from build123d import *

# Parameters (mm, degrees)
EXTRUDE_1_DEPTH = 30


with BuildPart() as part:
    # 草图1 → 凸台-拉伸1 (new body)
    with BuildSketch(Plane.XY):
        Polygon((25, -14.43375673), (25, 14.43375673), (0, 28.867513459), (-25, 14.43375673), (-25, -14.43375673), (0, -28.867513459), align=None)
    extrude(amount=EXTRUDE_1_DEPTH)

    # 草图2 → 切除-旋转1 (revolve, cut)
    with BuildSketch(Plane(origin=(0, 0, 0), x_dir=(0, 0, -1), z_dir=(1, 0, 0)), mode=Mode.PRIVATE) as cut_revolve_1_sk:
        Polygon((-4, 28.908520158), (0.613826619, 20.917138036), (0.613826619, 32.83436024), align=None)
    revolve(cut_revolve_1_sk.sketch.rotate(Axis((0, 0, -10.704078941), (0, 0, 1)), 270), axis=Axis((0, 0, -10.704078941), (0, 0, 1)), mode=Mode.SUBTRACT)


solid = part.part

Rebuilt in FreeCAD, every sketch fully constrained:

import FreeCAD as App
import Part
import Sketcher

V = App.Vector
Q = App.Units.Quantity


def add_polygon(sketch, points):
    """Adds a closed chain of lines whose ends are joined by coincident constraints."""
    first, n = sketch.GeometryCount, len(points)
    for a, b in zip(points, points[1:] + points[:1]):
        sketch.addGeometry(Part.LineSegment(App.Vector(*a, 0), App.Vector(*b, 0)), False)
    for i in range(n):
        sketch.addConstraint(Sketcher.Constraint("Coincident", first + i, 2, first + (i + 1) % n, 1))

doc = App.newDocument("Part")
params = doc.addObject("Spreadsheet::Sheet", "Params")
for row, (alias, value) in enumerate([
    ("pad1_length", "30 mm"),
    ("groove_angle", "360 deg"),
], start=1):
    params.set(f"A{row}", alias)
    params.set(f"B{row}", "=" + value)
    params.setAlias(f"B{row}", alias)

body = doc.addObject("PartDesign::Body", "Body")

# Sketch on XY plane
sketch1 = doc.addObject("Sketcher::SketchObject", "Sketch")
body.addObject(sketch1)
sketch1.AttachmentSupport = (doc.XY_Plane, [""])
sketch1.MapMode = "FlatFace"
add_polygon(sketch1, [(25, -14), (25, 14), (0, 29), (-25, 14), (-25, -14), (0, -29)])  # lines 0-5
sketch1.addConstraint([
    Sketcher.Constraint("Vertical", 0),
    Sketcher.Constraint("Vertical", 3),
    Sketcher.Constraint("Symmetric", 0, 2, 3, 2, -1, 1),
    Sketcher.Constraint("Symmetric", 1, 2, 4, 2, -1, 1),
    Sketcher.Constraint("PointOnObject", 1, 2, -2),
    Sketcher.Constraint("Parallel", 2, 5),
    Sketcher.Constraint("Horizontal", 0, 2, 2, 2),
    Sketcher.Constraint("Angle", 1, Q("150 deg")),
    Sketcher.Constraint("DistanceX", -1, 1, 0, 2, Q("25 mm")),
    Sketcher.Constraint("DistanceY", 0, 1, 0, 2, Q("28.867513 mm")),
])
pad1 = doc.addObject("PartDesign::Pad", "Pad")
body.addObject(pad1)
pad1.Profile = sketch1
pad1.setExpression("Length", "Params.pad1_length")

# Sketch on YZ plane
sketch2 = doc.addObject("Sketcher::SketchObject", "Sketch001")
body.addObject(sketch2)
sketch2.AttachmentSupport = (doc.YZ_Plane, [""])
sketch2.MapMode = "FlatFace"
add_polygon(sketch2, [(29, 4), (21, -1), (33, -1)])  # lines 0-2
sketch2.addConstraint([
    Sketcher.Constraint("Horizontal", 1),
    Sketcher.Constraint("Angle", 0, Q("-150 deg")),
    Sketcher.Constraint("DistanceY", -1, 1, 2, 2, Q("4 mm")),
    Sketcher.Constraint("Distance", 2, Q("6.058021 mm")),
    Sketcher.Constraint("DistanceX", 1, 1, 1, 2, Q("11.917222 mm")),
    Sketcher.Constraint("DistanceX", -1, 1, 0, 2, Q("20.917138 mm")),
])
groove = doc.addObject("PartDesign::Groove", "Groove")
body.addObject(groove)
groove.Profile = sketch2
groove.ReferenceAxis = (sketch2, ["V_Axis"])
groove.setExpression("Angle", "Params.groove_angle")

doc.recompute()
